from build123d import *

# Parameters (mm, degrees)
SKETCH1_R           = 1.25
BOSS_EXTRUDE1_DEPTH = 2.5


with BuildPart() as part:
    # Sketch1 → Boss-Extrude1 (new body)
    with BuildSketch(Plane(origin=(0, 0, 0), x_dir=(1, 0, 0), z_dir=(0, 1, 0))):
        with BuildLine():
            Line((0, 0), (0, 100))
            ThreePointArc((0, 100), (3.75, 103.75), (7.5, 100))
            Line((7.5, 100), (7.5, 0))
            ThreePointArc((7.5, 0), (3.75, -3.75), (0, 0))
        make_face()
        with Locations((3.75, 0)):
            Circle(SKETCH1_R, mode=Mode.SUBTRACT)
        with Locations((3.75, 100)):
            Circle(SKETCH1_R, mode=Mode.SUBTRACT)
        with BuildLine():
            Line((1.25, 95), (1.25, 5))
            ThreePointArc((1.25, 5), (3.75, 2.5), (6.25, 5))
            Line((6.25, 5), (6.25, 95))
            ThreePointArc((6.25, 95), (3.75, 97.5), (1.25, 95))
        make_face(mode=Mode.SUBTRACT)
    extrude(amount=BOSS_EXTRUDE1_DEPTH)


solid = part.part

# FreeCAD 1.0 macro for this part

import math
import FreeCAD as App
import Part
import Sketcher

V = App.Vector
Q = App.Units.Quantity

doc = App.newDocument("Part")
body = doc.addObject("PartDesign::Body", "Body")

# Sketch on XZ plane
sketch1 = doc.addObject("Sketcher::SketchObject", "Sketch")
body.addObject(sketch1)
sketch1.AttachmentSupport = (doc.XZ_Plane, [""])
sketch1.MapMode = "FlatFace"
sketch1.addGeometry(Part.LineSegment(V(0, -100, 0), V(0, 0, 0)), False)
sketch1.addGeometry(Part.ArcOfCircle(Part.Circle(V(3.8, 0, 0), V(0, 0, 1), 3.8), math.radians(0), math.radians(180)), False)
sketch1.addGeometry(Part.LineSegment(V(7.5, 0, 0), V(7.5, -100, 0)), False)
sketch1.addGeometry(Part.ArcOfCircle(Part.Circle(V(3.8, -100, 0), V(0, 0, 1), 3.8), math.radians(180), math.radians(360)), False)
sketch1.addGeometry(Part.Circle(V(3.8, 0, 0), V(0, 0, 1), 1.2), False)
sketch1.addGeometry(Part.ArcOfCircle(Part.Circle(V(3.8, -95, 0), V(0, 0, 1), 2.5), math.radians(180), math.radians(360)), False)
sketch1.addGeometry(Part.LineSegment(V(6.2, -95, 0), V(6.2, -5, 0)), False)
sketch1.addGeometry(Part.ArcOfCircle(Part.Circle(V(3.8, -5, 0), V(0, 0, 1), 2.5), math.radians(0), math.radians(180)), False)
sketch1.addGeometry(Part.LineSegment(V(1.2, -5, 0), V(1.2, -95, 0)), False)
sketch1.addGeometry(Part.Circle(V(3.8, -100, 0), V(0, 0, 1), 1.2), False)
sketch1.addConstraint(Sketcher.Constraint("Tangent", 0, 2, 1, 2))
sketch1.addConstraint(Sketcher.Constraint("Tangent", 1, 1, 2, 1))
sketch1.addConstraint(Sketcher.Constraint("Tangent", 2, 2, 3, 2))
sketch1.addConstraint(Sketcher.Constraint("Tangent", 3, 1, 0, 1))
sketch1.addConstraint(Sketcher.Constraint("Tangent", 5, 2, 6, 1))
sketch1.addConstraint(Sketcher.Constraint("Tangent", 6, 2, 7, 1))
sketch1.addConstraint(Sketcher.Constraint("Tangent", 7, 2, 8, 1))
sketch1.addConstraint(Sketcher.Constraint("Tangent", 8, 2, 5, 1))
sketch1.addConstraint(Sketcher.Constraint("Vertical", 0))
sketch1.addConstraint(Sketcher.Constraint("Vertical", 2))
sketch1.addConstraint(Sketcher.Constraint("Vertical", 6))
sketch1.addConstraint(Sketcher.Constraint("Vertical", 8))
sketch1.addConstraint(Sketcher.Constraint("Coincident", 0, 2, -1, 1))
sketch1.addConstraint(Sketcher.Constraint("Coincident", 4, 3, 1, 3))
sketch1.addConstraint(Sketcher.Constraint("Coincident", 9, 3, 3, 3))
sketch1.addConstraint(Sketcher.Constraint("Equal", 4, 9))
sketch1.addConstraint(Sketcher.Constraint("Vertical", 4, 3, 5, 3))
sketch1.addConstraint(Sketcher.Constraint("Diameter", 4, Q("2.5 mm")))
sketch1.addConstraint(Sketcher.Constraint("Radius", 5, Q("2.5 mm")))
sketch1.addConstraint(Sketcher.Constraint("DistanceY", 0, 1, 0, 2, Q("100 mm")))
sketch1.addConstraint(Sketcher.Constraint("DistanceY", 6, 1, 6, 2, Q("90 mm")))
sketch1.addConstraint(Sketcher.Constraint("Radius", 1, Q("3.75 mm")))
sketch1.addConstraint(Sketcher.Constraint("DistanceY", 5, 3, -1, 1, Q("95 mm")))
pad1 = doc.addObject("PartDesign::Pad", "Pad")
body.addObject(pad1)
pad1.Profile = sketch1
pad1.Length = 2.5
pad1.Reversed = True

doc.recompute()
